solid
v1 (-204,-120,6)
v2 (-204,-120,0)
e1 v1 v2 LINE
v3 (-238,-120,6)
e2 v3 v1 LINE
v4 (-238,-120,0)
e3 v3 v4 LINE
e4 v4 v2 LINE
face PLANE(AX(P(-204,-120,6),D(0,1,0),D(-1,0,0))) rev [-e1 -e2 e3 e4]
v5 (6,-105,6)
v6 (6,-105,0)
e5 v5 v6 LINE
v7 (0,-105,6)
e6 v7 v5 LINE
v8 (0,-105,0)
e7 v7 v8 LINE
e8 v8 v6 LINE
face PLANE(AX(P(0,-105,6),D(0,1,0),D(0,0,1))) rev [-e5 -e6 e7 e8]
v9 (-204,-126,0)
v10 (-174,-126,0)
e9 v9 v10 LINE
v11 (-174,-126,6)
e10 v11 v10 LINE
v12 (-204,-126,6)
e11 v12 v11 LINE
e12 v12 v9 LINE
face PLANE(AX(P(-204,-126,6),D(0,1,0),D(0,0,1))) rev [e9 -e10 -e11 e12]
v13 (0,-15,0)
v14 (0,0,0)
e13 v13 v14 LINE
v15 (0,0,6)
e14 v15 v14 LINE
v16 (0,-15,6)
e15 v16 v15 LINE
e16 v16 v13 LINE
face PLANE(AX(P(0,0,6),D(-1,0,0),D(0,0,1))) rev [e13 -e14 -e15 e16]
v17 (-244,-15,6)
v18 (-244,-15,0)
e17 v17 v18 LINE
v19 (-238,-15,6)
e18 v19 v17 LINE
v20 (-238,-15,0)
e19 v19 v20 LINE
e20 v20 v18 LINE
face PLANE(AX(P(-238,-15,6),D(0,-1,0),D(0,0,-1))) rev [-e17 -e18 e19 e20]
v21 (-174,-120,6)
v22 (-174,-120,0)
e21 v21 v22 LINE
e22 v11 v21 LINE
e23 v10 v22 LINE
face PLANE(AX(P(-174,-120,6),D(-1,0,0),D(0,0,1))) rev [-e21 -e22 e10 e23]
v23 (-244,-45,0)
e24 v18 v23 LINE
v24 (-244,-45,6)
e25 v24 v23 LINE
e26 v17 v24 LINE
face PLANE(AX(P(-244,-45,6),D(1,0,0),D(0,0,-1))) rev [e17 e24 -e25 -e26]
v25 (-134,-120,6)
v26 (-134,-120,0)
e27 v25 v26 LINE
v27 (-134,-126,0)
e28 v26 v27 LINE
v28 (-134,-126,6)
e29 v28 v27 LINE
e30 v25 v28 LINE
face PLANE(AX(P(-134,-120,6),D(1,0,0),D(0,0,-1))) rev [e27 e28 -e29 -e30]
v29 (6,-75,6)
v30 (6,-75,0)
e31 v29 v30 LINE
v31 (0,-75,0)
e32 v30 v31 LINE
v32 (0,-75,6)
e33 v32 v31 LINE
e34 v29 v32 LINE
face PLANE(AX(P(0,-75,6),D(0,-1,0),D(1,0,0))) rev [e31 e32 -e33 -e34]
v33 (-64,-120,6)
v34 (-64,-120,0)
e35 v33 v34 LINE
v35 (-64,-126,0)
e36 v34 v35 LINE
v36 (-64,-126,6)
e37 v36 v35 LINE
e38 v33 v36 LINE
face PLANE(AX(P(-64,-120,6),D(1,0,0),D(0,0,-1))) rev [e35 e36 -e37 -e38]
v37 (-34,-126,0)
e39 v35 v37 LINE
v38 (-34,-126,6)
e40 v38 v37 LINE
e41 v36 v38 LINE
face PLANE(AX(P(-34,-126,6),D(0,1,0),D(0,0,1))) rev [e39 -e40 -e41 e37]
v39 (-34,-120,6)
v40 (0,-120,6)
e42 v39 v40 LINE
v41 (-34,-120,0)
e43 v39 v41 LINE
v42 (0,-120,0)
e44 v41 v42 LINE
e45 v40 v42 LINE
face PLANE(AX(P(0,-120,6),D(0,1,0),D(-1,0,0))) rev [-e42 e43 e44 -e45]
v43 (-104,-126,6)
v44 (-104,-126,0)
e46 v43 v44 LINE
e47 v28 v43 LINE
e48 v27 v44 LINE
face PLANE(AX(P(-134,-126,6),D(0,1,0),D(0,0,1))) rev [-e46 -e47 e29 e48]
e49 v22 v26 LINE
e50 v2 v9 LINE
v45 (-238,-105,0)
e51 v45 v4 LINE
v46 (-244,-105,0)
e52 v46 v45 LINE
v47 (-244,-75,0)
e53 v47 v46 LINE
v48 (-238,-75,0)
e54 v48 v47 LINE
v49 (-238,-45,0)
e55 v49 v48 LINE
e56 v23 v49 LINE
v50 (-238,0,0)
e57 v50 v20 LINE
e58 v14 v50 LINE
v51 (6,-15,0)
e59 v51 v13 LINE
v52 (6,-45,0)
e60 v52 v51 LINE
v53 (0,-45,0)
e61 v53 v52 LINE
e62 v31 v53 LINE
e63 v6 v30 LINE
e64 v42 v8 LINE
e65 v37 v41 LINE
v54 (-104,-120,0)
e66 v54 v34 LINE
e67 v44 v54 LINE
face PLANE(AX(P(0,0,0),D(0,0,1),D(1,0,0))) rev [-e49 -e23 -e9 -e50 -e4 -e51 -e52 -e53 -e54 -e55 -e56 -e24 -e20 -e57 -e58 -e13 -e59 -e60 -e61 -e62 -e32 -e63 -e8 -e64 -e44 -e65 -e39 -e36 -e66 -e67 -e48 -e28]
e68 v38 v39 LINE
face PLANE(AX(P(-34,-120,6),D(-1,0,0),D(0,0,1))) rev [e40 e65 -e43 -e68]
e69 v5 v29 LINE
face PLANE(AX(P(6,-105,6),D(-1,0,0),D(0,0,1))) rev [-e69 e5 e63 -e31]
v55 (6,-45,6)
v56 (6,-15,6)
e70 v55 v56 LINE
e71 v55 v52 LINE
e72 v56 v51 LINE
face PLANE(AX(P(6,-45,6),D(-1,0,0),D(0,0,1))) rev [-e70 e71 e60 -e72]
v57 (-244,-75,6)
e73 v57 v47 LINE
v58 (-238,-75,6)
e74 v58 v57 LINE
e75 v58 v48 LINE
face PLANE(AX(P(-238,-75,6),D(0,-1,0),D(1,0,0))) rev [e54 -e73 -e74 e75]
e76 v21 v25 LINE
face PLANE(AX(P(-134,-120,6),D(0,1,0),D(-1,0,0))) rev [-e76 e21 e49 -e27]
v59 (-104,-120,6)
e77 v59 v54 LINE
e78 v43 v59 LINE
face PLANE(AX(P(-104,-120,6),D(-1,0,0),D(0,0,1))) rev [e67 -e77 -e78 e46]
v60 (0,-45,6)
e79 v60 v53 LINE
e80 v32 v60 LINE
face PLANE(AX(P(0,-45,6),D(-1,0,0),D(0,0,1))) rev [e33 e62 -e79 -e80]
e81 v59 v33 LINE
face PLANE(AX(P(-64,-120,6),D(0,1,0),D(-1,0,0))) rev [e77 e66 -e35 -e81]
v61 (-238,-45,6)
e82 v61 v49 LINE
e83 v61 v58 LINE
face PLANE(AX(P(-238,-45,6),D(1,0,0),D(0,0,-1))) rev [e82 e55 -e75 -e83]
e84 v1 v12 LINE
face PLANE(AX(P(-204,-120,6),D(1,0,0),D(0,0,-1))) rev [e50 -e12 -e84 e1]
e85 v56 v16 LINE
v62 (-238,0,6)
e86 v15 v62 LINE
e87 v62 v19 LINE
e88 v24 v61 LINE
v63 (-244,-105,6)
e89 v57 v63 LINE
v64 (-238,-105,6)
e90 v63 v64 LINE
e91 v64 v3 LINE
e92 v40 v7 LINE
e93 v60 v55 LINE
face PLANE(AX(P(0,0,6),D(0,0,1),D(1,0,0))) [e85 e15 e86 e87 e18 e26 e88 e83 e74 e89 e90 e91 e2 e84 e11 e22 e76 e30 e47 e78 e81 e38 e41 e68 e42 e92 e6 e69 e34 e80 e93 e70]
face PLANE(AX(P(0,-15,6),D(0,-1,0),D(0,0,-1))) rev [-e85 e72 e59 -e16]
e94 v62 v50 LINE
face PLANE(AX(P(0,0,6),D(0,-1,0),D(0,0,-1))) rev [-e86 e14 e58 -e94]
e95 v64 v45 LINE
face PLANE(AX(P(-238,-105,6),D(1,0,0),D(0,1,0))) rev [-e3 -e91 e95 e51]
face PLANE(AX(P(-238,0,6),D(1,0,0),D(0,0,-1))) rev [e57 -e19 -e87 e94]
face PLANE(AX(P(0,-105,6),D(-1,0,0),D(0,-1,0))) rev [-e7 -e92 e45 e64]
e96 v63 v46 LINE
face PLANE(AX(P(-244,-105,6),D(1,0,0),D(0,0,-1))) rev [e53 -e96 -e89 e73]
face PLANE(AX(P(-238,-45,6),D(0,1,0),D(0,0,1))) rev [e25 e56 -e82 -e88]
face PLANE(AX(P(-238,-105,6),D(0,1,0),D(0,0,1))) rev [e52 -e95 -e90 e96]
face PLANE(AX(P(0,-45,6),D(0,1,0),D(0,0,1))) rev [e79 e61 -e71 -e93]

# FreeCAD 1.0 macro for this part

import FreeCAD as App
import Part
import Sketcher
from FreeCAD import Vector
Q = App.Units.Quantity


def add_polygon(sketch, points):
    """Adds a closed chain of lines whose ends are joined by coincident constraints."""
    first, n = sketch.GeometryCount, len(points)
    for a, b in zip(points, points[1:] + points[:1]):
        sketch.addGeometry(Part.LineSegment(App.Vector(*a, 0), App.Vector(*b, 0)), False)
    for i in range(n):
        sketch.addConstraint(Sketcher.Constraint("Coincident", first + i, 2, first + (i + 1) % n, 1))

doc = App.newDocument("Part")
params = doc.addObject("Spreadsheet::Sheet", "Params")
for row, (alias, value) in enumerate([
    ("sketch1_width", "238 mm"),
    ("sketch1_width2", "6 mm"),
    ("sketch1_width3", "34 mm"),
    ("sketch1_width4", "30 mm"),
    ("sketch1_height", "15 mm"),
    ("pad1_length", "6 mm"),
], start=1):
    params.set(f"A{row}", alias)
    params.set(f"B{row}", "=" + value)
    params.setAlias(f"B{row}", alias)

body = doc.addObject("PartDesign::Body", "Body")

# Sketch on XY plane
sketch1 = body.newObject("Sketcher::SketchObject", "Sketch")
sketch1.AttachmentSupport = (doc.getObject("XY_Plane"), [""])
sketch1.MapMode = "FlatFace"
add_polygon(sketch1, [(0, 0), (-238, 0), (-238, -15), (-244, -15), (-244, -45), (-238, -45), (-238, -75), (-244, -75), (-244, -105), (-238, -105), (-238, -120), (-204, -120), (-204, -126), (-174, -126), (-174, -120), (-134, -120), (-134, -126), (-104, -126), (-104, -120), (-64, -120), (-64, -126), (-34, -126), (-34, -120), (0, -120), (0, -105), (6, -105), (6, -75), (0, -75), (0, -45), (6, -45), (6, -15), (0, -15)])  # lines 0-31
sketch1.addConstraint([
    Sketcher.Constraint("Horizontal", 0),
    Sketcher.Constraint("Vertical", 1),
    Sketcher.Constraint("Horizontal", 2),
    Sketcher.Constraint("Vertical", 3),
    Sketcher.Constraint("Horizontal", 4),
    Sketcher.Constraint("Vertical", 5),
    Sketcher.Constraint("Horizontal", 6),
    Sketcher.Constraint("Vertical", 7),
    Sketcher.Constraint("Horizontal", 8),
    Sketcher.Constraint("Vertical", 9),
    Sketcher.Constraint("Horizontal", 10),
    Sketcher.Constraint("Vertical", 11),
    Sketcher.Constraint("Horizontal", 12),
    Sketcher.Constraint("Vertical", 13),
    Sketcher.Constraint("Horizontal", 14),
    Sketcher.Constraint("Vertical", 15),
    Sketcher.Constraint("Horizontal", 16),
    Sketcher.Constraint("Vertical", 17),
    Sketcher.Constraint("Horizontal", 18),
    Sketcher.Constraint("Vertical", 19),
    Sketcher.Constraint("Horizontal", 20),
    Sketcher.Constraint("Vertical", 21),
    Sketcher.Constraint("Horizontal", 22),
    Sketcher.Constraint("Vertical", 23),
    Sketcher.Constraint("Horizontal", 24),
    Sketcher.Constraint("Vertical", 25),
    Sketcher.Constraint("Horizontal", 26),
    Sketcher.Constraint("Vertical", 27),
    Sketcher.Constraint("Horizontal", 28),
    Sketcher.Constraint("Vertical", 29),
    Sketcher.Constraint("Horizontal", 30),
    Sketcher.Constraint("Vertical", 31),
    Sketcher.Constraint("Coincident", 31, 2, -1, 1),
    Sketcher.Constraint("PointOnObject", 22, 2, -2),
    Sketcher.Constraint("PointOnObject", 26, 2, -2),
    Sketcher.Constraint("Horizontal", 10, 2, 13, 2),
    Sketcher.Constraint("Horizontal", 12, 2, 15, 2),
    Sketcher.Constraint("Horizontal", 14, 2, 17, 2),
    Sketcher.Constraint("Horizontal", 16, 2, 19, 2),
    Sketcher.Constraint("Horizontal", 18, 2, 21, 2),
    Sketcher.Constraint("Horizontal", 8, 2, 23, 2),
    Sketcher.Constraint("Horizontal", 6, 2, 25, 2),
    Sketcher.Constraint("Horizontal", 4, 2, 27, 2),
    Sketcher.Constraint("Horizontal", 2, 2, 29, 2),
    Sketcher.Constraint("Vertical", 1, 2, 4, 2),
    Sketcher.Constraint("Vertical", 3, 2, 6, 2),
    Sketcher.Constraint("Vertical", 5, 2, 8, 2),
    Sketcher.Constraint("Vertical", 25, 2, 28, 2),
    Sketcher.Constraint("Equal", 12, 16),
    Sketcher.Constraint("Equal", 14, 18),
    Sketcher.Constraint("Equal", 16, 20),
    Sketcher.Constraint("Equal", 10, 22),
    Sketcher.Constraint("Equal", 8, 24),
    Sketcher.Constraint("Equal", 20, 3),
    Sketcher.Constraint("Equal", 3, 5),
    Sketcher.Constraint("Equal", 5, 7),
    Sketcher.Constraint("Equal", 1, 9),
    Sketcher.Constraint("Equal", 30, 11),
    Sketcher.Constraint("DistanceX", 0, 2, 0, 1, Q("238 mm")),
    Sketcher.Constraint("DistanceX", 2, 2, 2, 1, Q("6 mm")),
    Sketcher.Constraint("DistanceX", 10, 1, 10, 2, Q("34 mm")),
    Sketcher.Constraint("DistanceX", 12, 1, 12, 2, Q("30 mm")),
    Sketcher.Constraint("DistanceY", 1, 2, 1, 1, Q("15 mm")),
])
sketch1.setExpression("Constraints[90]", "Params.sketch1_width")
sketch1.setExpression("Constraints[91]", "Params.sketch1_width2")
sketch1.setExpression("Constraints[92]", "Params.sketch1_width3")
sketch1.setExpression("Constraints[93]", "Params.sketch1_width4")
sketch1.setExpression("Constraints[94]", "Params.sketch1_height")
pad1 = body.newObject("PartDesign::Pad", "Pad")
pad1.Profile = sketch1
pad1.setExpression("Length", "Params.pad1_length")

doc.recompute()
